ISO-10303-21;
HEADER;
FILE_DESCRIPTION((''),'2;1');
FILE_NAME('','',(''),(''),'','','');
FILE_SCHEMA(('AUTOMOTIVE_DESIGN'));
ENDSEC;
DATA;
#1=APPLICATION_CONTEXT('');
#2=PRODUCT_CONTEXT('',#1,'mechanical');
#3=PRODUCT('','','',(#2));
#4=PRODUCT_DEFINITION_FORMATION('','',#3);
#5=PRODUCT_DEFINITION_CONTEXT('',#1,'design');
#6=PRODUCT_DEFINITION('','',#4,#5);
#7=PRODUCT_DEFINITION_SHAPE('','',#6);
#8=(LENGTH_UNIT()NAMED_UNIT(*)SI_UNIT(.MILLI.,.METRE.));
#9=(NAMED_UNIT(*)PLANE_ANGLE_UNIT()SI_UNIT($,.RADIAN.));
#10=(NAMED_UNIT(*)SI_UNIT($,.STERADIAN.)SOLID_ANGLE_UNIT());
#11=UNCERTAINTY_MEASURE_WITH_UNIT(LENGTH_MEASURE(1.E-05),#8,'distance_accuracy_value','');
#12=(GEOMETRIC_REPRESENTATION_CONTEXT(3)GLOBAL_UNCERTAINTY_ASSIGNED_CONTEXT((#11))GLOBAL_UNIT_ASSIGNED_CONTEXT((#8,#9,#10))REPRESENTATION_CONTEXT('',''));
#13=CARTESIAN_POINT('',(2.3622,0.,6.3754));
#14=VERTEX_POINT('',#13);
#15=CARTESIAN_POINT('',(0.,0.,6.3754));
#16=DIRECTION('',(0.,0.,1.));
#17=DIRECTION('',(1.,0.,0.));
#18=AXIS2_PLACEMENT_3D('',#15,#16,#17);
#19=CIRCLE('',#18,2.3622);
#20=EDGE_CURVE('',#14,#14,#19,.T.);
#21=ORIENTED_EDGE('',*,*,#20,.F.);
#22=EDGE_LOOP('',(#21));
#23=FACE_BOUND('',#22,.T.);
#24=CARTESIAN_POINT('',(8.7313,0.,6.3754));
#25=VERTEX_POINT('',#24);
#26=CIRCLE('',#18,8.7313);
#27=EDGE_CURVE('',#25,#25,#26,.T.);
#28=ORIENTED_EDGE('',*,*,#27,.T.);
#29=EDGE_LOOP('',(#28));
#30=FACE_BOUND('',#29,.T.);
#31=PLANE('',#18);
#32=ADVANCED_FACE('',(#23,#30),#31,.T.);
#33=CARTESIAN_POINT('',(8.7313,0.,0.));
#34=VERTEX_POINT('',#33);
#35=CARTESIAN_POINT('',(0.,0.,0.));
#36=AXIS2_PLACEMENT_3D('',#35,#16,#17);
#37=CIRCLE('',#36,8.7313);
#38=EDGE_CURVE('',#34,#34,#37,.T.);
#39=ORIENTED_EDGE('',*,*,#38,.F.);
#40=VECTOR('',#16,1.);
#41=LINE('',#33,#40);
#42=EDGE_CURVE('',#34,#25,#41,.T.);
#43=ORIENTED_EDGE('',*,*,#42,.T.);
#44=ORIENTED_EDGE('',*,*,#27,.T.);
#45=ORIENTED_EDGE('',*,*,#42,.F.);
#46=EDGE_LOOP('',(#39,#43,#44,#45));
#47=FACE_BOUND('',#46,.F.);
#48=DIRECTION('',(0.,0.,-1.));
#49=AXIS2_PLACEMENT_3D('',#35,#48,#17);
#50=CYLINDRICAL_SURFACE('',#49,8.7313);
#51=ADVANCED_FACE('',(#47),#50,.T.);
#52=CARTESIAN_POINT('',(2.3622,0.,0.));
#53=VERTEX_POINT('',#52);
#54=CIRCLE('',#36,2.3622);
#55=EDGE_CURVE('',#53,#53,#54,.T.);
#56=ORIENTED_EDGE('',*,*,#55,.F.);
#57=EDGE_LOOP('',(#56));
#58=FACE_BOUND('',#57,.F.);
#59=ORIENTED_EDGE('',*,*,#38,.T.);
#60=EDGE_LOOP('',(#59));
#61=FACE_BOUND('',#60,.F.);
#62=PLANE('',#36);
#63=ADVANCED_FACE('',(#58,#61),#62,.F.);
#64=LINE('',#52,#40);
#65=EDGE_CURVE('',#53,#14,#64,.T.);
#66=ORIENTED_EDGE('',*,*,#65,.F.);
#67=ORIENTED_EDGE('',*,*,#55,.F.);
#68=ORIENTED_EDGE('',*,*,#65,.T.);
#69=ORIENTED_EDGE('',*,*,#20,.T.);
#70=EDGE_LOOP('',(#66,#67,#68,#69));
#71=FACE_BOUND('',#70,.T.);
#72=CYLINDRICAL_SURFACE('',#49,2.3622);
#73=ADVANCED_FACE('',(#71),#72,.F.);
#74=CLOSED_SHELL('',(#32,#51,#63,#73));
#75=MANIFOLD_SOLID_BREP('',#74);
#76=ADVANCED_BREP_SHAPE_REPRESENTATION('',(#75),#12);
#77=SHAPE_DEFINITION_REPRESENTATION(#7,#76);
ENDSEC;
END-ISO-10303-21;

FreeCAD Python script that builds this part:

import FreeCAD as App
import Part
import Sketcher
from FreeCAD import Vector
Q = App.Units.Quantity

doc = App.newDocument("Part")
body = doc.addObject("PartDesign::Body", "Body")

# Sketch on XY plane
sketch1 = body.newObject("Sketcher::SketchObject", "Sketch")
sketch1.AttachmentSupport = (doc.getObject("XY_Plane"), [""])
sketch1.MapMode = "FlatFace"
sketch1.addGeometry(Part.Circle(Vector(0, 0, 0), Vector(0, 0, 1), 8.7313), False)
sketch1.addGeometry(Part.Circle(Vector(0, 0, 0), Vector(0, 0, 1), 2.3622), False)
sketch1.addConstraint(Sketcher.Constraint("Coincident", 0, 3, -1, 1))
sketch1.addConstraint(Sketcher.Constraint("Coincident", 1, 3, -1, 1))
sketch1.addConstraint(Sketcher.Constraint("Diameter", 0, Q("0.6875 in")))
sketch1.addConstraint(Sketcher.Constraint("Diameter", 1, Q("0.186 in")))
pad1 = body.newObject("PartDesign::Pad", "Pad")
pad1.Profile = sketch1
pad1.Length = Q("0.251 in")

doc.recompute()
